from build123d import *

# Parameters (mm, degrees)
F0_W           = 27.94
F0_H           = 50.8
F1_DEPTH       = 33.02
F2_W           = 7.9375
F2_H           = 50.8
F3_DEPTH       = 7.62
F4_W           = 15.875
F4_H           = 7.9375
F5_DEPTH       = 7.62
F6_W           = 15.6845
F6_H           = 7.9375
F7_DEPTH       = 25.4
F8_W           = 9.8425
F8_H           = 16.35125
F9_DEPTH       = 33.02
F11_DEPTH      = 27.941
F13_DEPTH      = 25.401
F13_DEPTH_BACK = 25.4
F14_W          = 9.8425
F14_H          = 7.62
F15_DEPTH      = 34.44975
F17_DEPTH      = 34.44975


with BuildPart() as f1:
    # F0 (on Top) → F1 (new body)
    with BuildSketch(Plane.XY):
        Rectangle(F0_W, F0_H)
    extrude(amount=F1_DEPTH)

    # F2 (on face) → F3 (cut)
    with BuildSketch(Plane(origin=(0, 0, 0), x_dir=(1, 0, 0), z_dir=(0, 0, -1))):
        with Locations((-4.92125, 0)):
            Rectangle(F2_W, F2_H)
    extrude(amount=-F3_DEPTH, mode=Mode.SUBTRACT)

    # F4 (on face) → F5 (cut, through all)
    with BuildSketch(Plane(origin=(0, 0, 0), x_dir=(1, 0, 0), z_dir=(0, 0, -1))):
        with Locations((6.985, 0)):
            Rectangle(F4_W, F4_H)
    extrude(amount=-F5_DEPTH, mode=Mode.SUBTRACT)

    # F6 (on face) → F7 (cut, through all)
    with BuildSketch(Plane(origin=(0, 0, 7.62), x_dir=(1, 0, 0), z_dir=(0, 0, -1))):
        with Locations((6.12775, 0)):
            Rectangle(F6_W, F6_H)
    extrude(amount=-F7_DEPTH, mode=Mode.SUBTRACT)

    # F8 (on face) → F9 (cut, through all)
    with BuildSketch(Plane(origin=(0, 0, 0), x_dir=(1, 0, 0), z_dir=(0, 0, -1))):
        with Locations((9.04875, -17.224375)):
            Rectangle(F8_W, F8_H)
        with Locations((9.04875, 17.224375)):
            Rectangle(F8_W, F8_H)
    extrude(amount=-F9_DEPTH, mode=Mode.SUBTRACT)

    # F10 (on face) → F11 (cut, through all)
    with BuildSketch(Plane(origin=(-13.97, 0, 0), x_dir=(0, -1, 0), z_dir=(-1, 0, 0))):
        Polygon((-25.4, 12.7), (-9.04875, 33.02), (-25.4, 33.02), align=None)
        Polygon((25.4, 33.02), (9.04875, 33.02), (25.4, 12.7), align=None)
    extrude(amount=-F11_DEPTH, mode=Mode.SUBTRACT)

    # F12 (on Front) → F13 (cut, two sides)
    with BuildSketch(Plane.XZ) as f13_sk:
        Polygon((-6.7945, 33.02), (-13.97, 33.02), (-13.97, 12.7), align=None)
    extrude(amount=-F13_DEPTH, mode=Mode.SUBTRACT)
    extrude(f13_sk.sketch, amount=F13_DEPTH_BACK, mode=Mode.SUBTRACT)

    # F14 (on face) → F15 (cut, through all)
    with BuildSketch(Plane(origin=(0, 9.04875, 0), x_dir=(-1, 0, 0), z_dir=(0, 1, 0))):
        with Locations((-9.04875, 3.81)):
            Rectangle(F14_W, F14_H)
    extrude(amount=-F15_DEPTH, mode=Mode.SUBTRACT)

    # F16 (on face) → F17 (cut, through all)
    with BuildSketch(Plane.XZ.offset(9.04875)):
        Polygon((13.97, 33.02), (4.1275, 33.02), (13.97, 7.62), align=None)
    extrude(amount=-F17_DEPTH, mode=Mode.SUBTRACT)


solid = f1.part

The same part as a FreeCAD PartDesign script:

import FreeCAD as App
import Part
import Sketcher
Q = App.Units.Quantity


def add_polygon(sketch, points):
    """Adds a closed chain of lines whose ends are joined by coincident constraints."""
    first, n = sketch.GeometryCount, len(points)
    for a, b in zip(points, points[1:] + points[:1]):
        sketch.addGeometry(Part.LineSegment(App.Vector(*a, 0), App.Vector(*b, 0)), False)
    for i in range(n):
        sketch.addConstraint(Sketcher.Constraint("Coincident", first + i, 2, first + (i + 1) % n, 1))

doc = App.newDocument("Part")
params = doc.addObject("Spreadsheet::Sheet", "Params")
for row, (alias, value) in enumerate([
    ("sketch1_height", "2 in"),
    ("sketch1_width", "1.1 in"),
    ("pad1_length", "1.3 in"),
    ("sketch2_height", "2 in"),
    ("sketch2_width", "0.3125 in"),
    ("pocket1_length", "0.3 in"),
    ("sketch3_width", "0.625 in"),
    ("sketch3_height", "0.3125 in"),
    ("pocket2_length", "0.3 in"),
    ("sketch4_height", "0.3125 in"),
    ("sketch6_height", "0.8 in"),
    ("sketch7_height", "0.8 in"),
    ("sketch8_height", "0.3 in"),
    ("sketch9_height", "1 in"),
], start=1):
    params.set(f"A{row}", alias)
    params.set(f"B{row}", "=" + value)
    params.setAlias(f"B{row}", alias)

body = doc.addObject("PartDesign::Body", "Body")

sketch1 = body.newObject("Sketcher::SketchObject", "Sketch")
sketch1.AttachmentSupport = (doc.getObject("XY_Plane"), [""])
sketch1.MapMode = "FlatFace"
add_polygon(sketch1, [(-14, 25), (-14, -25), (14, -25), (14, 25)])
sketch1.addConstraint([
    Sketcher.Constraint("Vertical", 0),
    Sketcher.Constraint("Horizontal", 1),
    Sketcher.Constraint("Vertical", 2),
    Sketcher.Constraint("Horizontal", 3),
    Sketcher.Constraint("Symmetric", 0, 2, 2, 2, -1, 1),
    Sketcher.Constraint("DistanceY", 0, 2, 0, 1, Q("2 in")),
    Sketcher.Constraint("DistanceX", 1, 1, 1, 2, Q("1.1 in")),
])
sketch1.setExpression("Constraints[9]", "Params.sketch1_height")
sketch1.setExpression("Constraints[10]", "Params.sketch1_width")
pad1 = body.newObject("PartDesign::Pad", "Pad")
pad1.Profile = sketch1
pad1.setExpression("Length", "Params.pad1_length")

sketch2 = body.newObject("Sketcher::SketchObject", "Sketch001")
sketch2.AttachmentSupport = (doc.getObject("XY_Plane"), [""])
sketch2.MapMode = "FlatFace"
add_polygon(sketch2, [(-9, -25), (-9, 25), (-1, 25), (-1, -25)])
sketch2.addConstraint([
    Sketcher.Constraint("Vertical", 0),
    Sketcher.Constraint("Horizontal", 1),
    Sketcher.Constraint("Vertical", 2),
    Sketcher.Constraint("Horizontal", 3),
    Sketcher.Constraint("DistanceY", 0, 1, 0, 2, Q("2 in")),
    Sketcher.Constraint("DistanceY", -1, 1, 0, 2, Q("1 in")),
    Sketcher.Constraint("DistanceX", 1, 1, 1, 2, Q("0.3125 in")),
    Sketcher.Constraint("DistanceX", 0, 2, -1, 1, Q("0.35 in")),
])
sketch2.setExpression("Constraints[8]", "Params.sketch2_height")
sketch2.setExpression("Constraints[10]", "Params.sketch2_width")
pocket1 = body.newObject("PartDesign::Pocket", "Pocket")
pocket1.Profile = sketch2
pocket1.setExpression("Length", "Params.pocket1_length")
pocket1.Reversed = True

sketch3 = body.newObject("Sketcher::SketchObject", "Sketch002")
sketch3.AttachmentSupport = (doc.getObject("XY_Plane"), [""])
sketch3.MapMode = "FlatFace"
add_polygon(sketch3, [(-1, -4), (-1, 4), (15, 4), (15, -4)])
sketch3.addConstraint([
    Sketcher.Constraint("Vertical", 0),
    Sketcher.Constraint("Horizontal", 1),
    Sketcher.Constraint("Vertical", 2),
    Sketcher.Constraint("Horizontal", 3),
    Sketcher.Constraint("DistanceX", 1, 1, 1, 2, Q("0.625 in")),
    Sketcher.Constraint("DistanceY", 0, 1, 0, 2, Q("0.3125 in")),
    Sketcher.Constraint("DistanceY", -1, 1, 0, 2, Q("0.15625 in")),
    Sketcher.Constraint("DistanceX", 0, 2, -1, 1, Q("0.0375 in")),
])
sketch3.setExpression("Constraints[8]", "Params.sketch3_width")
sketch3.setExpression("Constraints[9]", "Params.sketch3_height")
pocket2 = body.newObject("PartDesign::Pocket", "Pocket001")
pocket2.Profile = sketch3
pocket2.setExpression("Length", "Params.pocket2_length")
pocket2.Reversed = True

sketch4 = body.newObject("Sketcher::SketchObject", "Sketch003")
sketch4.AttachmentSupport = (doc.getObject("XY_Plane"), [""])
sketch4.MapMode = "FlatFace"
sketch4.AttachmentOffset = App.Placement(App.Vector(0, 0, 0.3 * 25.4), App.Rotation())
add_polygon(sketch4, [(-2, -4), (-2, 4), (14, 4), (14, -4)])
sketch4.addConstraint([
    Sketcher.Constraint("Vertical", 0),
    Sketcher.Constraint("Horizontal", 1),
    Sketcher.Constraint("Vertical", 2),
    Sketcher.Constraint("Horizontal", 3),
    Sketcher.Constraint("DistanceY", 0, 1, 0, 2, Q("0.3125 in")),
    Sketcher.Constraint("DistanceX", -1, 1, 1, 2, Q("0.55 in")),
    Sketcher.Constraint("DistanceX", 1, 1, 1, 2, Q("0.6175 in")),
    Sketcher.Constraint("DistanceY", -1, 1, 0, 2, Q("0.15625 in")),
])
sketch4.setExpression("Constraints[8]", "Params.sketch4_height")
pocket3 = body.newObject("PartDesign::Pocket", "Pocket002")
pocket3.Profile = sketch4
pocket3.Type = "ThroughAll"
pocket3.Reversed = True

sketch5 = body.newObject("Sketcher::SketchObject", "Sketch004")
sketch5.AttachmentSupport = (doc.getObject("XY_Plane"), [""])
sketch5.MapMode = "FlatFace"
add_polygon(sketch5, [(4, 9), (4, 25), (14, 25), (14, 9)])
add_polygon(sketch5, [(4, -25), (4, -9), (14, -9), (14, -25)])
sketch5.addConstraint([
    Sketcher.Constraint("Vertical", 0),
    Sketcher.Constraint("Horizontal", 1),
    Sketcher.Constraint("Vertical", 2),
    Sketcher.Constraint("Horizontal", 3),
    Sketcher.Constraint("Vertical", 4),
    Sketcher.Constraint("Horizontal", 5),
    Sketcher.Constraint("Vertical", 6),
    Sketcher.Constraint("Horizontal", 7),
    Sketcher.Constraint("Symmetric", 3, 2, 4, 2, -1),
    Sketcher.Constraint("Symmetric", 1, 2, 6, 2, -1),
    Sketcher.Constraint("DistanceY", -1, 1, 0, 2, Q("1 in")),
    Sketcher.Constraint("DistanceX", -1, 1, 1, 2, Q("0.55 in")),
    Sketcher.Constraint("DistanceX", 1, 1, 1, 2, Q("0.3875 in")),
    Sketcher.Constraint("DistanceY", 4, 2, 3, 2, Q("0.7125 in")),
])
pocket4 = body.newObject("PartDesign::Pocket", "Pocket003")
pocket4.Profile = sketch5
pocket4.Type = "ThroughAll"
pocket4.Reversed = True

sketch6 = body.newObject("Sketcher::SketchObject", "Sketch005")
sketch6.AttachmentSupport = (doc.getObject("YZ_Plane"), [""])
sketch6.MapMode = "FlatFace"
sketch6.AttachmentOffset = App.Placement(App.Vector(0, 0, -0.55 * 25.4), App.Rotation())
add_polygon(sketch6, [(25, 13), (9, 33), (25, 33)])
add_polygon(sketch6, [(-25, 33), (-9, 33), (-25, 13)])
sketch6.addConstraint([
    Sketcher.Constraint("Horizontal", 1),
    Sketcher.Constraint("Vertical", 2),
    Sketcher.Constraint("Horizontal", 3),
    Sketcher.Constraint("Vertical", 5),
    Sketcher.Constraint("Symmetric", 0, 2, 3, 2, -2),
    Sketcher.Constraint("Symmetric", 2, 2, 4, 2, -2),
    Sketcher.Constraint("DistanceY", 2, 2, 2, 1, Q("0.8 in")),
    Sketcher.Constraint("DistanceX", -1, 1, 1, 2, Q("1 in")),
    Sketcher.Constraint("DistanceY", -1, 1, 0, 2, Q("1.3 in")),
    Sketcher.Constraint("DistanceX", 3, 2, 0, 2, Q("0.7125 in")),
])
sketch6.setExpression("Constraints[12]", "Params.sketch6_height")
pocket5 = body.newObject("PartDesign::Pocket", "Pocket004")
pocket5.Profile = sketch6
pocket5.Type = "ThroughAll"
pocket5.Reversed = True

sketch7 = body.newObject("Sketcher::SketchObject", "Sketch006")
sketch7.AttachmentSupport = (doc.getObject("XZ_Plane"), [""])
sketch7.MapMode = "FlatFace"
add_polygon(sketch7, [(-7, 33), (-14, 33), (-14, 13)])
sketch7.addConstraint([
    Sketcher.Constraint("Horizontal", 0),
    Sketcher.Constraint("Vertical", 1),
    Sketcher.Constraint("DistanceY", 1, 2, 1, 1, Q("0.8 in")),
    Sketcher.Constraint("DistanceY", -1, 1, 0, 2, Q("1.3 in")),
    Sketcher.Constraint("DistanceX", 0, 2, -1, 1, Q("0.55 in")),
    Sketcher.Constraint("DistanceX", 0, 2, 0, 1, Q("0.2825 in")),
])
sketch7.setExpression("Constraints[5]", "Params.sketch7_height")
pocket6 = body.newObject("PartDesign::Pocket", "Pocket005")
pocket6.Profile = sketch7
pocket6.Type = "ThroughAll"
pocket6.Midplane = True

sketch8 = body.newObject("Sketcher::SketchObject", "Sketch007")
sketch8.AttachmentSupport = (doc.getObject("XZ_Plane"), [""])
sketch8.MapMode = "FlatFace"
sketch8.AttachmentOffset = App.Placement(App.Vector(0, 0, -9.04875), App.Rotation())
add_polygon(sketch8, [(14, 8), (14, 0), (4, 0), (4, 8)])
sketch8.addConstraint([
    Sketcher.Constraint("Vertical", 0),
    Sketcher.Constraint("Horizontal", 1),
    Sketcher.Constraint("Vertical", 2),
    Sketcher.Constraint("Horizontal", 3),
    Sketcher.Constraint("PointOnObject", 0, 2, -1),
    Sketcher.Constraint("DistanceY", 0, 2, 0, 1, Q("0.3 in")),
    Sketcher.Constraint("DistanceX", -1, 1, 0, 2, Q("0.55 in")),
    Sketcher.Constraint("DistanceX", 1, 2, 1, 1, Q("0.3875 in")),
])
sketch8.setExpression("Constraints[9]", "Params.sketch8_height")
pocket7 = body.newObject("PartDesign::Pocket", "Pocket006")
pocket7.Profile = sketch8
pocket7.Type = "ThroughAll"
pocket7.Reversed = True

sketch9 = body.newObject("Sketcher::SketchObject", "Sketch008")
sketch9.AttachmentSupport = (doc.getObject("XZ_Plane"), [""])
sketch9.MapMode = "FlatFace"
sketch9.AttachmentOffset = App.Placement(App.Vector(0, 0, 9.04875), App.Rotation())
add_polygon(sketch9, [(14, 33), (4, 33), (14, 8)])
sketch9.addConstraint([
    Sketcher.Constraint("Horizontal", 0),
    Sketcher.Constraint("Vertical", 2),
    Sketcher.Constraint("DistanceY", 2, 1, 2, 2, Q("1 in")),
    Sketcher.Constraint("DistanceY", -1, 1, 0, 2, Q("1.3 in")),
    Sketcher.Constraint("DistanceX", -1, 1, 1, 2, Q("0.55 in")),
    Sketcher.Constraint("DistanceX", 0, 2, 0, 1, Q("0.3875 in")),
])
sketch9.setExpression("Constraints[5]", "Params.sketch9_height")
pocket8 = body.newObject("PartDesign::Pocket", "Pocket007")
pocket8.Profile = sketch9
pocket8.Type = "ThroughAll"

doc.recompute()
